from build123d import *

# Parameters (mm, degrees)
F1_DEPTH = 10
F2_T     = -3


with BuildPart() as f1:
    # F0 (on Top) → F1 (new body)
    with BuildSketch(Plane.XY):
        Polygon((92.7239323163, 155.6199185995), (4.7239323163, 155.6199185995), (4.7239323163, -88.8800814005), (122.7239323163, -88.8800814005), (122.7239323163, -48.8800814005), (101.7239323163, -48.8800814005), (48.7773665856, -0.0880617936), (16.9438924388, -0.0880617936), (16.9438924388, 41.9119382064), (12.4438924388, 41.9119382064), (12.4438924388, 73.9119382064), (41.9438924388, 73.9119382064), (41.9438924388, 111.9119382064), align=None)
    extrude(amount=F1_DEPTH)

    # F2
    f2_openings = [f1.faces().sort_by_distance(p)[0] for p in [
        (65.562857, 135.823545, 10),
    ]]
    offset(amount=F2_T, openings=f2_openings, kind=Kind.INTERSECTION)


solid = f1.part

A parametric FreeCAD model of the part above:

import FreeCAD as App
import Part
import Sketcher
from FreeCAD import Vector
Q = App.Units.Quantity


def faces_at(feature, points):
    """Names of the faces that lie closest to the given points."""
    faces = feature.Shape.Faces
    near = lambda p: min(range(len(faces)), key=lambda i: faces[i].distToShape(Part.Vertex(*p))[0])
    return sorted({f"Face{near(p) + 1}" for p in points})


def add_polygon(sketch, points):
    """Adds a closed chain of lines whose ends are joined by coincident constraints."""
    first, n = sketch.GeometryCount, len(points)
    for a, b in zip(points, points[1:] + points[:1]):
        sketch.addGeometry(Part.LineSegment(App.Vector(*a, 0), App.Vector(*b, 0)), False)
    for i in range(n):
        sketch.addConstraint(Sketcher.Constraint("Coincident", first + i, 2, first + (i + 1) % n, 1))

doc = App.newDocument("Part")
body = doc.addObject("PartDesign::Body", "Body")

# Sketch on XY plane
sketch1 = body.newObject("Sketcher::SketchObject", "Sketch")
sketch1.AttachmentSupport = (doc.getObject("XY_Plane"), [""])
sketch1.MapMode = "FlatFace"
add_polygon(sketch1, [(92.7, 155.6), (4.7, 155.6), (4.7, -88.9), (122.7, -88.9), (122.7, -48.9), (101.7, -48.9), (48.8, -0.1), (16.9, -0.1), (16.9, 41.9), (12.4, 41.9), (12.4, 73.9), (41.9, 73.9), (41.9, 111.9)])  # lines 0-12
sketch1.addConstraint(Sketcher.Constraint("Horizontal", 0))
sketch1.addConstraint(Sketcher.Constraint("Vertical", 1))
sketch1.addConstraint(Sketcher.Constraint("Horizontal", 2))
sketch1.addConstraint(Sketcher.Constraint("Vertical", 3))
sketch1.addConstraint(Sketcher.Constraint("Horizontal", 4))
sketch1.addConstraint(Sketcher.Constraint("Horizontal", 6))
sketch1.addConstraint(Sketcher.Constraint("Vertical", 7))
sketch1.addConstraint(Sketcher.Constraint("Horizontal", 8))
sketch1.addConstraint(Sketcher.Constraint("Vertical", 9))
sketch1.addConstraint(Sketcher.Constraint("Horizontal", 10))
sketch1.addConstraint(Sketcher.Constraint("Vertical", 11))
sketch1.addConstraint(Sketcher.Constraint("DistanceX", 0, 2, 0, 1, Q("88 mm")))
sketch1.addConstraint(Sketcher.Constraint("DistanceX", 2, 1, 2, 2, Q("118 mm")))
sketch1.addConstraint(Sketcher.Constraint("DistanceX", 4, 2, 4, 1, Q("21 mm")))
sketch1.addConstraint(Sketcher.Constraint("DistanceY", 3, 1, 3, 2, Q("40 mm")))
sketch1.addConstraint(Sketcher.Constraint("DistanceY", 7, 1, 7, 2, Q("42 mm")))
sketch1.addConstraint(Sketcher.Constraint("DistanceY", 9, 1, 9, 2, Q("32 mm")))
sketch1.addConstraint(Sketcher.Constraint("DistanceY", 11, 1, 11, 2, Q("38 mm")))
sketch1.addConstraint(Sketcher.Constraint("Distance", 5, Q("72 mm")))
sketch1.addConstraint(Sketcher.Constraint("Distance", 12, Q("67 mm")))
sketch1.addConstraint(Sketcher.Constraint("DistanceX", 8, 2, 8, 1, Q("4.5 mm")))
sketch1.addConstraint(Sketcher.Constraint("DistanceX", 10, 1, 10, 2, Q("29.5 mm")))
sketch1.addConstraint(Sketcher.Constraint("DistanceY", 1, 2, 1, 1, Q("244.5 mm")))
sketch1.addConstraint(Sketcher.Constraint("DistanceX", 6, 2, 6, 1, Q("31.833474 mm")))
sketch1.addConstraint(Sketcher.Constraint("DistanceY", -1, 1, 0, 2, Q("155.619919 mm")))
sketch1.addConstraint(Sketcher.Constraint("DistanceX", -1, 1, 0, 2, Q("4.723932 mm")))
pad1 = body.newObject("PartDesign::Pad", "Pad")
pad1.Profile = sketch1
pad1.Length = 10
doc.recompute()

thickness = body.newObject("PartDesign::Thickness", "Thickness")
thickness.Base = (pad1, faces_at(pad1, [(40.124, -15.53, 10)]))
thickness.Value = 3
thickness.Reversed = True
thickness.Join = "Intersection"

doc.recompute()
